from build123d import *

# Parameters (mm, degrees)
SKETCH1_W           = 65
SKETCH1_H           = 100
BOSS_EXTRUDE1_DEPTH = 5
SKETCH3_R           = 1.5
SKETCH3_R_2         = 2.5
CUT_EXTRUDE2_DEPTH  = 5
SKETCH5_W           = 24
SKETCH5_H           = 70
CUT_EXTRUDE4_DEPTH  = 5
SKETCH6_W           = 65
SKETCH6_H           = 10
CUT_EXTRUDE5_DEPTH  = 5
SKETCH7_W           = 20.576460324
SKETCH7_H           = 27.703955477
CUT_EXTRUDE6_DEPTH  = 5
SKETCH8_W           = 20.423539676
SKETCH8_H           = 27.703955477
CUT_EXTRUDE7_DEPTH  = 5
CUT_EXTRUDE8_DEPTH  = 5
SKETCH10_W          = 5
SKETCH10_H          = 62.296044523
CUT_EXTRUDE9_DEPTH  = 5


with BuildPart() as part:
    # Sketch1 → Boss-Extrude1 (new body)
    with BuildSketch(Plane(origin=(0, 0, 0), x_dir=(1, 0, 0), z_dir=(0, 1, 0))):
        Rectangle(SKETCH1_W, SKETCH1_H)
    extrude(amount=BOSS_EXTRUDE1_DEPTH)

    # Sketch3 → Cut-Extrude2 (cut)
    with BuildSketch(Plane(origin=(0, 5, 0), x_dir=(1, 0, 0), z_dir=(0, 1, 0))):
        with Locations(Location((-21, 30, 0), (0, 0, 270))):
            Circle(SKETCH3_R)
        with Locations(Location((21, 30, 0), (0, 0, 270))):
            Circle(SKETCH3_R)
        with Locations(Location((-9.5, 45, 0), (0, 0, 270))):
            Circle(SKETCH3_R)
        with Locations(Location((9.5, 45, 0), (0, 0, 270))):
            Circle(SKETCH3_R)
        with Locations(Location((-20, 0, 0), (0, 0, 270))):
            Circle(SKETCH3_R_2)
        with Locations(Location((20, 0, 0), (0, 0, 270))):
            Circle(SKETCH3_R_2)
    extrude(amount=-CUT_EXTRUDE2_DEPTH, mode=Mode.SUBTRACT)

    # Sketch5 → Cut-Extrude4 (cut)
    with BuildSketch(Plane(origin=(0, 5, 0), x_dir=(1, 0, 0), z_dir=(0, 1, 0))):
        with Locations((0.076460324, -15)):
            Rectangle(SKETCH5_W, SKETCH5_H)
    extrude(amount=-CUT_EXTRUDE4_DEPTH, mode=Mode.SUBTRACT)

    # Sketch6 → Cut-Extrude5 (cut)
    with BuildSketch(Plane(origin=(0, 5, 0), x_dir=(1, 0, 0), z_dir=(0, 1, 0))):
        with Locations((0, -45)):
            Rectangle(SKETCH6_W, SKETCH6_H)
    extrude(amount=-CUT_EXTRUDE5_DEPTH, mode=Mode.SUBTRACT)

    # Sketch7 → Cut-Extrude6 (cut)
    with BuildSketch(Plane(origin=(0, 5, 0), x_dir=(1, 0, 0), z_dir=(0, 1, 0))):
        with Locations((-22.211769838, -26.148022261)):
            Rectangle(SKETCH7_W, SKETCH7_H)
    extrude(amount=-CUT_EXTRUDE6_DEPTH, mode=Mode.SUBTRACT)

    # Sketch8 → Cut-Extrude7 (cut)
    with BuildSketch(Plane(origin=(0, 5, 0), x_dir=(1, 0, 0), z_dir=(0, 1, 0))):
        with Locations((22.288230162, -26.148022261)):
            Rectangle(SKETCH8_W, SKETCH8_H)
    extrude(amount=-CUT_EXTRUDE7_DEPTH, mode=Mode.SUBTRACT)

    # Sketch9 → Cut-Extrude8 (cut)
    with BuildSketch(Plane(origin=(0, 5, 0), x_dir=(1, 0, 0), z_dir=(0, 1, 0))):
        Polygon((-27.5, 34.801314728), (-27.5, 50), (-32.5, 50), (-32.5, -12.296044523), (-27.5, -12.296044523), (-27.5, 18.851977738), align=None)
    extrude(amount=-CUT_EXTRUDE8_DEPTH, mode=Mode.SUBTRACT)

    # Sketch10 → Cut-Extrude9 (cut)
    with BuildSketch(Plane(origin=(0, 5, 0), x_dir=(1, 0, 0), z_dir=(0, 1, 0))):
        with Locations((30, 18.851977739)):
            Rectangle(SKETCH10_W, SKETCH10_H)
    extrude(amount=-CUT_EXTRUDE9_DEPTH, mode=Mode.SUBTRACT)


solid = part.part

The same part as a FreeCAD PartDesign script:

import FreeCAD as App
import Part
import Sketcher

V = App.Vector
Q = App.Units.Quantity

doc = App.newDocument("Part")
body = doc.addObject("PartDesign::Body", "Body")

# Sketch on XZ plane
sketch1 = body.newObject("Sketcher::SketchObject", "Sketch")
sketch1.AttachmentSupport = (doc.getObject("XZ_Plane"), [""])
sketch1.MapMode = "FlatFace"
sketch1.addGeometry([
    Part.LineSegment(V(-32.5, -50, 0), V(-32.5, 50, 0)),
    Part.LineSegment(V(-32.5, 50, 0), V(32.5, 50, 0)),
    Part.LineSegment(V(32.5, 50, 0), V(32.5, -50, 0)),
    Part.LineSegment(V(32.5, -50, 0), V(-32.5, -50, 0)),
], False)
sketch1.addConstraint([
    Sketcher.Constraint("Coincident", 0, 2, 1, 1),
    Sketcher.Constraint("Coincident", 1, 2, 2, 1),
    Sketcher.Constraint("Coincident", 2, 2, 3, 1),
    Sketcher.Constraint("Coincident", 3, 2, 0, 1),
    Sketcher.Constraint("Vertical", 0),
    Sketcher.Constraint("Horizontal", 1),
    Sketcher.Constraint("Vertical", 2),
    Sketcher.Constraint("Horizontal", 3),
    Sketcher.Constraint("Symmetric", 0, 2, 2, 2, -1, 1),
    Sketcher.Constraint("DistanceX", 1, 1, 1, 2, Q("65 mm")),
    Sketcher.Constraint("DistanceY", 0, 1, 0, 2, Q("100 mm")),
])
pad1 = body.newObject("PartDesign::Pad", "Pad")
pad1.Profile = sketch1
pad1.Length = 5
pad1.Reversed = True

# Sketch on XZ plane
sketch2 = body.newObject("Sketcher::SketchObject", "Sketch001")
sketch2.AttachmentSupport = (doc.getObject("XZ_Plane"), [""])
sketch2.MapMode = "FlatFace"
sketch2.AttachmentOffset = App.Placement(V(0, 0, -5), App.Rotation())
sketch2.addGeometry([
    Part.Circle(V(-21, -30, 0), V(0, 0, 1), 1.5),  # 0
    Part.Circle(V(21, -30, 0), V(0, 0, 1), 1.5),  # 1
    Part.Circle(V(-9.5, -45, 0), V(0, 0, 1), 1.5),  # 2
    Part.Circle(V(9.5, -45, 0), V(0, 0, 1), 1.5),  # 3
    Part.Circle(V(-20, 0, 0), V(0, 0, 1), 2.5),  # 4
    Part.Circle(V(20, 0, 0), V(0, 0, 1), 2.5),  # 5
], False)
sketch2.addConstraint([
    Sketcher.Constraint("Equal", 0, 1),
    Sketcher.Constraint("Equal", 1, 2),
    Sketcher.Constraint("Equal", 2, 3),
    Sketcher.Constraint("Equal", 4, 5),
    Sketcher.Constraint("Symmetric", 4, 3, 5, 3, -1, 1),
    Sketcher.Constraint("Symmetric", 0, 3, 1, 3, -2),
    Sketcher.Constraint("Symmetric", 2, 3, 3, 3, -2),
    Sketcher.Constraint("PointOnObject", 4, 3, -1),
    Sketcher.Constraint("Diameter", 0, Q("3 mm")),
    Sketcher.Constraint("Diameter", 4, Q("5 mm")),
    Sketcher.Constraint("DistanceX", 0, 3, -1, 1, Q("21 mm")),
    Sketcher.Constraint("DistanceY", 0, 3, -1, 1, Q("30 mm")),
    Sketcher.Constraint("DistanceY", 2, 3, -1, 1, Q("45 mm")),
    Sketcher.Constraint("DistanceX", 4, 3, -1, 1, Q("20 mm")),
    Sketcher.Constraint("DistanceX", 2, 3, 3, 3, Q("19 mm")),
])
pocket1 = body.newObject("PartDesign::Pocket", "Pocket")
pocket1.Profile = sketch2
pocket1.Length = 5
pocket1.Reversed = True

# Sketch on XZ plane
sketch3 = body.newObject("Sketcher::SketchObject", "Sketch002")
sketch3.AttachmentSupport = (doc.getObject("XZ_Plane"), [""])
sketch3.MapMode = "FlatFace"
sketch3.AttachmentOffset = App.Placement(V(0, 0, -5), App.Rotation())
sketch3.addGeometry([
    Part.LineSegment(V(-11.92354, -20, 0), V(-11.92354, 50, 0)),
    Part.LineSegment(V(-11.92354, 50, 0), V(12.07646, 50, 0)),
    Part.LineSegment(V(12.07646, 50, 0), V(12.07646, -20, 0)),
    Part.LineSegment(V(12.07646, -20, 0), V(-11.92354, -20, 0)),
], False)
sketch3.addConstraint([
    Sketcher.Constraint("Coincident", 0, 2, 1, 1),
    Sketcher.Constraint("Coincident", 1, 2, 2, 1),
    Sketcher.Constraint("Coincident", 2, 2, 3, 1),
    Sketcher.Constraint("Coincident", 3, 2, 0, 1),
    Sketcher.Constraint("Vertical", 0),
    Sketcher.Constraint("Horizontal", 1),
    Sketcher.Constraint("Vertical", 2),
    Sketcher.Constraint("Horizontal", 3),
    Sketcher.Constraint("DistanceX", 1, 1, 1, 2, Q("24 mm")),
    Sketcher.Constraint("DistanceY", 0, 1, 0, 2, Q("70 mm")),
    Sketcher.Constraint("DistanceY", -1, 1, 0, 2, Q("50 mm")),
    Sketcher.Constraint("DistanceX", 0, 2, -1, 1, Q("11.92354 mm")),
])
pocket2 = body.newObject("PartDesign::Pocket", "Pocket001")
pocket2.Profile = sketch3
pocket2.Length = 5
pocket2.Reversed = True

# Sketch on XZ plane
sketch4 = body.newObject("Sketcher::SketchObject", "Sketch003")
sketch4.AttachmentSupport = (doc.getObject("XZ_Plane"), [""])
sketch4.MapMode = "FlatFace"
sketch4.AttachmentOffset = App.Placement(V(0, 0, -5), App.Rotation())
sketch4.addGeometry([
    Part.LineSegment(V(-32.5, 40, 0), V(-32.5, 50, 0)),
    Part.LineSegment(V(-32.5, 50, 0), V(32.5, 50, 0)),
    Part.LineSegment(V(32.5, 50, 0), V(32.5, 40, 0)),
    Part.LineSegment(V(32.5, 40, 0), V(-32.5, 40, 0)),
], False)
sketch4.addConstraint([
    Sketcher.Constraint("Coincident", 0, 2, 1, 1),
    Sketcher.Constraint("Coincident", 1, 2, 2, 1),
    Sketcher.Constraint("Coincident", 2, 2, 3, 1),
    Sketcher.Constraint("Coincident", 3, 2, 0, 1),
    Sketcher.Constraint("Vertical", 0),
    Sketcher.Constraint("Horizontal", 1),
    Sketcher.Constraint("Vertical", 2),
    Sketcher.Constraint("Horizontal", 3),
    Sketcher.Constraint("DistanceX", 1, 1, 1, 2, Q("65 mm")),
    Sketcher.Constraint("DistanceY", 0, 1, 0, 2, Q("10 mm")),
    Sketcher.Constraint("DistanceY", -1, 1, 0, 2, Q("50 mm")),
    Sketcher.Constraint("DistanceX", 0, 2, -1, 1, Q("32.5 mm")),
])
pocket3 = body.newObject("PartDesign::Pocket", "Pocket002")
pocket3.Profile = sketch4
pocket3.Length = 5
pocket3.Reversed = True

# Sketch on XZ plane
sketch5 = body.newObject("Sketcher::SketchObject", "Sketch004")
sketch5.AttachmentSupport = (doc.getObject("XZ_Plane"), [""])
sketch5.MapMode = "FlatFace"
sketch5.AttachmentOffset = App.Placement(V(0, 0, -5), App.Rotation())
sketch5.addGeometry([
    Part.LineSegment(V(-32.5, 12.296045, 0), V(-32.5, 40, 0)),
    Part.LineSegment(V(-32.5, 40, 0), V(-11.92354, 40, 0)),
    Part.LineSegment(V(-11.92354, 40, 0), V(-11.92354, 12.296045, 0)),
    Part.LineSegment(V(-11.92354, 12.296045, 0), V(-32.5, 12.296045, 0)),
], False)
sketch5.addConstraint([
    Sketcher.Constraint("Coincident", 0, 2, 1, 1),
    Sketcher.Constraint("Coincident", 1, 2, 2, 1),
    Sketcher.Constraint("Coincident", 2, 2, 3, 1),
    Sketcher.Constraint("Coincident", 3, 2, 0, 1),
    Sketcher.Constraint("Vertical", 0),
    Sketcher.Constraint("Horizontal", 1),
    Sketcher.Constraint("Vertical", 2),
    Sketcher.Constraint("Horizontal", 3),
    Sketcher.Constraint("DistanceY", -1, 1, 0, 2, Q("40 mm")),
    Sketcher.Constraint("DistanceX", 0, 2, -1, 1, Q("32.5 mm")),
    Sketcher.Constraint("DistanceX", 1, 1, 1, 2, Q("20.57646 mm")),
    Sketcher.Constraint("DistanceY", 0, 1, 0, 2, Q("27.703955 mm")),
])
pocket4 = body.newObject("PartDesign::Pocket", "Pocket003")
pocket4.Profile = sketch5
pocket4.Length = 5
pocket4.Reversed = True

# Sketch on XZ plane
sketch6 = body.newObject("Sketcher::SketchObject", "Sketch005")
sketch6.AttachmentSupport = (doc.getObject("XZ_Plane"), [""])
sketch6.MapMode = "FlatFace"
sketch6.AttachmentOffset = App.Placement(V(0, 0, -5), App.Rotation())
sketch6.addGeometry([
    Part.LineSegment(V(12.07646, 12.296045, 0), V(12.07646, 40, 0)),
    Part.LineSegment(V(12.07646, 40, 0), V(32.5, 40, 0)),
    Part.LineSegment(V(32.5, 40, 0), V(32.5, 12.296045, 0)),
    Part.LineSegment(V(32.5, 12.296045, 0), V(12.07646, 12.296045, 0)),
], False)
sketch6.addConstraint([
    Sketcher.Constraint("Coincident", 0, 2, 1, 1),
    Sketcher.Constraint("Coincident", 1, 2, 2, 1),
    Sketcher.Constraint("Coincident", 2, 2, 3, 1),
    Sketcher.Constraint("Coincident", 3, 2, 0, 1),
    Sketcher.Constraint("Vertical", 0),
    Sketcher.Constraint("Horizontal", 1),
    Sketcher.Constraint("Vertical", 2),
    Sketcher.Constraint("Horizontal", 3),
    Sketcher.Constraint("DistanceY", -1, 1, 0, 2, Q("40 mm")),
    Sketcher.Constraint("DistanceX", -1, 1, 1, 2, Q("32.5 mm")),
    Sketcher.Constraint("DistanceX", 1, 1, 1, 2, Q("20.42354 mm")),
    Sketcher.Constraint("DistanceY", 0, 1, 0, 2, Q("27.703955 mm")),
])
pocket5 = body.newObject("PartDesign::Pocket", "Pocket004")
pocket5.Profile = sketch6
pocket5.Length = 5
pocket5.Reversed = True

# Sketch on XZ plane
sketch7 = body.newObject("Sketcher::SketchObject", "Sketch006")
sketch7.AttachmentSupport = (doc.getObject("XZ_Plane"), [""])
sketch7.MapMode = "FlatFace"
sketch7.AttachmentOffset = App.Placement(V(0, 0, -5), App.Rotation())
sketch7.addGeometry([
    Part.LineSegment(V(-27.5, -50, 0), V(-32.5, -50, 0)),
    Part.LineSegment(V(-32.5, -50, 0), V(-32.5, 12.296045, 0)),
    Part.LineSegment(V(-32.5, 12.296045, 0), V(-27.5, 12.296045, 0)),
    Part.LineSegment(V(-27.5, 12.296045, 0), V(-27.5, -50, 0)),
], False)
sketch7.addConstraint([
    Sketcher.Constraint("Coincident", 0, 2, 1, 1),
    Sketcher.Constraint("Coincident", 1, 2, 2, 1),
    Sketcher.Constraint("Coincident", 2, 2, 3, 1),
    Sketcher.Constraint("Coincident", 3, 2, 0, 1),
    Sketcher.Constraint("Horizontal", 0),
    Sketcher.Constraint("Vertical", 1),
    Sketcher.Constraint("Horizontal", 2),
    Sketcher.Constraint("Vertical", 3),
    Sketcher.Constraint("DistanceX", 0, 2, 0, 1, Q("5 mm")),
    Sketcher.Constraint("DistanceY", 0, 2, -1, 1, Q("50 mm")),
    Sketcher.Constraint("DistanceX", 0, 2, -1, 1, Q("32.5 mm")),
    Sketcher.Constraint("DistanceY", 1, 1, 1, 2, Q("62.296045 mm")),
])
pocket6 = body.newObject("PartDesign::Pocket", "Pocket005")
pocket6.Profile = sketch7
pocket6.Length = 5
pocket6.Reversed = True

# Sketch on XZ plane
sketch8 = body.newObject("Sketcher::SketchObject", "Sketch007")
sketch8.AttachmentSupport = (doc.getObject("XZ_Plane"), [""])
sketch8.MapMode = "FlatFace"
sketch8.AttachmentOffset = App.Placement(V(0, 0, -5), App.Rotation())
sketch8.addGeometry([
    Part.LineSegment(V(27.5, -50, 0), V(27.5, 12.296045, 0)),
    Part.LineSegment(V(27.5, 12.296045, 0), V(32.5, 12.296045, 0)),
    Part.LineSegment(V(32.5, 12.296045, 0), V(32.5, -50, 0)),
    Part.LineSegment(V(32.5, -50, 0), V(27.5, -50, 0)),
], False)
sketch8.addConstraint([
    Sketcher.Constraint("Coincident", 0, 2, 1, 1),
    Sketcher.Constraint("Coincident", 1, 2, 2, 1),
    Sketcher.Constraint("Coincident", 2, 2, 3, 1),
    Sketcher.Constraint("Coincident", 3, 2, 0, 1),
    Sketcher.Constraint("Vertical", 0),
    Sketcher.Constraint("Horizontal", 1),
    Sketcher.Constraint("Vertical", 2),
    Sketcher.Constraint("Horizontal", 3),
    Sketcher.Constraint("DistanceX", 1, 1, 1, 2, Q("5 mm")),
    Sketcher.Constraint("DistanceY", 2, 2, -1, 1, Q("50 mm")),
    Sketcher.Constraint("DistanceX", -1, 1, 0, 2, Q("27.5 mm")),
    Sketcher.Constraint("DistanceY", 0, 1, 0, 2, Q("62.296045 mm")),
])
pocket7 = body.newObject("PartDesign::Pocket", "Pocket006")
pocket7.Profile = sketch8
pocket7.Length = 5
pocket7.Reversed = True

doc.recompute()
